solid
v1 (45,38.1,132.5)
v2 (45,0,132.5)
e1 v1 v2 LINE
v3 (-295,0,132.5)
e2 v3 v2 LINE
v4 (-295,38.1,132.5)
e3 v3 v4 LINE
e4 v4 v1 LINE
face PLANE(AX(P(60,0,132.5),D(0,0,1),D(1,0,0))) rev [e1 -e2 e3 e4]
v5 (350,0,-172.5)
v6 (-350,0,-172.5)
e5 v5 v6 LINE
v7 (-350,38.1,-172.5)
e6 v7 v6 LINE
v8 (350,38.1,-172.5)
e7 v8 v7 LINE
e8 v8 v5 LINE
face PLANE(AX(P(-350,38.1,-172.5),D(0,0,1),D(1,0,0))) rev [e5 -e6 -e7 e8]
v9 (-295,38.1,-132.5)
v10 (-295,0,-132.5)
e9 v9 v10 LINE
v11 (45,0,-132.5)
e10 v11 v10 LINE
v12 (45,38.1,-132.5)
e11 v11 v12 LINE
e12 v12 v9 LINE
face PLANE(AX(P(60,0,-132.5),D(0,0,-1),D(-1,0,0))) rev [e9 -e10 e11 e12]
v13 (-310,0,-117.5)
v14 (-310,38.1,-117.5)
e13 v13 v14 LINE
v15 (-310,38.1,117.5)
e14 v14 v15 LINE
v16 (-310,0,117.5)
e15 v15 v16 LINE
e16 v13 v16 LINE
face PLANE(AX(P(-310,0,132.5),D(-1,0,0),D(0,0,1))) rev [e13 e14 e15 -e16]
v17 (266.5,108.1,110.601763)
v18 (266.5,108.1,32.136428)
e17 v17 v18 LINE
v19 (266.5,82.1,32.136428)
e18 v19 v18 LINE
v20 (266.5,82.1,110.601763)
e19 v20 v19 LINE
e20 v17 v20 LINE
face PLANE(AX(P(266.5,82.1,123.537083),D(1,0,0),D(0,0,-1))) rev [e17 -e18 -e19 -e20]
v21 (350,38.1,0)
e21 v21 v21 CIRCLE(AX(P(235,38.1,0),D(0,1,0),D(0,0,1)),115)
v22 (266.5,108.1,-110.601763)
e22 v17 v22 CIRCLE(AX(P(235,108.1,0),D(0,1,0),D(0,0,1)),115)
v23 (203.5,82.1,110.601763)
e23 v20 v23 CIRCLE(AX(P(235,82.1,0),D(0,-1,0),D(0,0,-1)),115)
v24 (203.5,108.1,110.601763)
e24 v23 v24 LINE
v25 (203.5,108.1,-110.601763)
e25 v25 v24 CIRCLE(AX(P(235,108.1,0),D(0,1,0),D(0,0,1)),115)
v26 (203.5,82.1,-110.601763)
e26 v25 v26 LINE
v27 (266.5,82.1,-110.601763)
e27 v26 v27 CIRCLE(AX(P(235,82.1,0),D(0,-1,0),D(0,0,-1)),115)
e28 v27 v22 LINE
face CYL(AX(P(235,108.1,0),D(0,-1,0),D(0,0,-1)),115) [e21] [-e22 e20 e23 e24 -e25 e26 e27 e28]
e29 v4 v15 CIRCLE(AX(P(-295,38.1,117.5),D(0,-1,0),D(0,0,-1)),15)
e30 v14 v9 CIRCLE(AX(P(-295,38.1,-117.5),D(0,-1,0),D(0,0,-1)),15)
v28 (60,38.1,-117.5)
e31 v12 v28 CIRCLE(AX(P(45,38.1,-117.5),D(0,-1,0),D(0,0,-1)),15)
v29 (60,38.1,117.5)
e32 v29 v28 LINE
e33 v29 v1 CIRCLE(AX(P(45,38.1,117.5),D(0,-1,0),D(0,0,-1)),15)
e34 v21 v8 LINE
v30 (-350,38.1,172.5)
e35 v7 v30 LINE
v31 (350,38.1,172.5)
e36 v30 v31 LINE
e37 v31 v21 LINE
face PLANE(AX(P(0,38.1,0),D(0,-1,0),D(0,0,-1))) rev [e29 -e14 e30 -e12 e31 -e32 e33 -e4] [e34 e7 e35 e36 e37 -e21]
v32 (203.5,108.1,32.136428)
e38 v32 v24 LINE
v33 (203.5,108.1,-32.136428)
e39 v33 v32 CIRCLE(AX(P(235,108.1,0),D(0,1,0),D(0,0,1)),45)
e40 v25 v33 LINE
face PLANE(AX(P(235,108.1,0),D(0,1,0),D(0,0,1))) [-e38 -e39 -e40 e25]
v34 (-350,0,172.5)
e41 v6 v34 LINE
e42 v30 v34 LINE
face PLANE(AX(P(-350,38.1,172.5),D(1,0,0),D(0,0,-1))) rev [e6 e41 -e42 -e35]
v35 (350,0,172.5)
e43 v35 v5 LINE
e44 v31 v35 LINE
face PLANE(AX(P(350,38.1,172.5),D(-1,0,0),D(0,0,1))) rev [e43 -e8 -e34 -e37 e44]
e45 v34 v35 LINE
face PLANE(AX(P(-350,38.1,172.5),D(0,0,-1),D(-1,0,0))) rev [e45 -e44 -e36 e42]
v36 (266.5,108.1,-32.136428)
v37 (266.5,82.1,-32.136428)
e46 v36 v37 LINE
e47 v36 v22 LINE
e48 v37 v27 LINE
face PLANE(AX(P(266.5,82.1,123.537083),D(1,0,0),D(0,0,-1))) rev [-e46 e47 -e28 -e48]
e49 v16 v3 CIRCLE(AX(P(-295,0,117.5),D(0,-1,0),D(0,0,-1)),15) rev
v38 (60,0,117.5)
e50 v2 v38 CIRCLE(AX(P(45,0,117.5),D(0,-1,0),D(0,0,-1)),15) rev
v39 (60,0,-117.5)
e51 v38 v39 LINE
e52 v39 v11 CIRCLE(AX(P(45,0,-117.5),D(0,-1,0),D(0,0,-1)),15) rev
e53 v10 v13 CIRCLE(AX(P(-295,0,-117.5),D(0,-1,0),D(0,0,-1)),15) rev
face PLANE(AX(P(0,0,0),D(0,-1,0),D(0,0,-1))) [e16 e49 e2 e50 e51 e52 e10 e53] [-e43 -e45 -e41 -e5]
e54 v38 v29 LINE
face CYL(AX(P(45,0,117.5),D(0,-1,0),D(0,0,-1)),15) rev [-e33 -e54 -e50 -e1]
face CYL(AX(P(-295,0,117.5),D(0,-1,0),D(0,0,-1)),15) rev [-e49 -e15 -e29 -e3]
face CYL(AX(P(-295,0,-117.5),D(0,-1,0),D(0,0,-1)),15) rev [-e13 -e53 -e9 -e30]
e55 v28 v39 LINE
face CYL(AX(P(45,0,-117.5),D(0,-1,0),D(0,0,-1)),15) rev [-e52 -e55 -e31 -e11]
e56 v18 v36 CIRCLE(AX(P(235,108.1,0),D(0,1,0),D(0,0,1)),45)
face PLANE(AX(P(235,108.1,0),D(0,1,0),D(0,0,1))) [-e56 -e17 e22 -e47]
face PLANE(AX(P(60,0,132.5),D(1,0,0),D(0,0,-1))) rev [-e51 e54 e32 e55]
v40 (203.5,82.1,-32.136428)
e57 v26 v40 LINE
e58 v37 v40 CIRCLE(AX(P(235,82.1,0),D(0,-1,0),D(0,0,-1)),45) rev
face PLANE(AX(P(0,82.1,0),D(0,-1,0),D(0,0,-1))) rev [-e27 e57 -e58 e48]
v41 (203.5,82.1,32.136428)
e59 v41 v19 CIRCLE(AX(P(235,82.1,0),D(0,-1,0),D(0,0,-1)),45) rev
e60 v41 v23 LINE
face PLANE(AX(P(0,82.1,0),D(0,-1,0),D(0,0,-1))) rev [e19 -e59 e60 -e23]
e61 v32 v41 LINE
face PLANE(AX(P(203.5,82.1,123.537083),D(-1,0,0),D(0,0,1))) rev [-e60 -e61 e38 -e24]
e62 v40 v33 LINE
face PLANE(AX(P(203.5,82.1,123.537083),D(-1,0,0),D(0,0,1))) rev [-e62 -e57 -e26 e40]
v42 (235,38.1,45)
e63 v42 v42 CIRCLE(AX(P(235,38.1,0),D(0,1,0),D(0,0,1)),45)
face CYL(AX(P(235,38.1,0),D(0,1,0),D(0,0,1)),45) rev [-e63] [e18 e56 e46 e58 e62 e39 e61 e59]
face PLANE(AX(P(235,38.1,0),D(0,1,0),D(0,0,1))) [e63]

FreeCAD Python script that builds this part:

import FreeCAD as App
import Part
import Sketcher
from FreeCAD import Vector


def edges_at(feature, points):
    """Names of the edges that pass closest to the given points."""
    edges = feature.Shape.Edges
    near = lambda p: min(range(len(edges)), key=lambda i: edges[i].distToShape(Part.Vertex(*p))[0])
    return sorted({f"Edge{near(p) + 1}" for p in points})


def add_polygon(sketch, points):
    """Adds a closed chain of lines whose ends are joined by coincident constraints."""
    first, n = sketch.GeometryCount, len(points)
    for a, b in zip(points, points[1:] + points[:1]):
        sketch.addGeometry(Part.LineSegment(App.Vector(*a, 0), App.Vector(*b, 0)), False)
    for i in range(n):
        sketch.addConstraint(Sketcher.Constraint("Coincident", first + i, 2, first + (i + 1) % n, 1))

doc = App.newDocument("Part")
body = doc.addObject("PartDesign::Body", "Body")

sketch1 = body.newObject("Sketcher::SketchObject", "Sketch")
sketch1.AttachmentSupport = (doc.getObject("XZ_Plane"), [""])
sketch1.MapMode = "FlatFace"
add_polygon(sketch1, [(-350, -172), (-350, 172), (350, 172), (350, -172)])
sketch1.addConstraint([
    Sketcher.Constraint("Vertical", 0),
    Sketcher.Constraint("Horizontal", 1),
    Sketcher.Constraint("Vertical", 2),
    Sketcher.Constraint("Horizontal", 3),
    Sketcher.Constraint("Symmetric", 0, 2, 2, 2, -1, 1),
    Sketcher.Constraint("DistanceX", 1, 1, 1, 2, 700.0),
    Sketcher.Constraint("DistanceY", 0, 1, 0, 2, 345.0),
])
pad1 = body.newObject("PartDesign::Pad", "Pad")
pad1.Profile = sketch1
pad1.Length = 38.1
pad1.Reversed = True

sketch2 = body.newObject("Sketcher::SketchObject", "Sketch001")
sketch2.AttachmentSupport = (doc.getObject("XZ_Plane"), [""])
sketch2.MapMode = "FlatFace"
sketch2.AttachmentOffset = App.Placement(Vector(0, 0, -38.1), App.Rotation())
add_polygon(sketch2, [(-310, -132), (-310, 132), (60, 132), (60, -132)])
sketch2.addConstraint([
    Sketcher.Constraint("Vertical", 0),
    Sketcher.Constraint("Horizontal", 1),
    Sketcher.Constraint("Vertical", 2),
    Sketcher.Constraint("Horizontal", 3),
    Sketcher.Constraint("DistanceX", 1, 1, 1, 2, 370.0),
    Sketcher.Constraint("DistanceY", 0, 1, 0, 2, 265.0),
    Sketcher.Constraint("DistanceX", 0, 2, -1, 1, 310.0),
    Sketcher.Constraint("DistanceY", -1, 1, 0, 2, 132.5),
])
pocket1 = body.newObject("PartDesign::Pocket", "Pocket")
pocket1.Profile = sketch2
pocket1.Length = 38.1
pocket1.Reversed = True
doc.recompute()

fillet = body.newObject("PartDesign::Fillet", "Fillet")
fillet.Base = (pocket1, edges_at(pocket1, [
    (-310, 19.05, 132.5),
    (-310, 19.05, -132.5),
    (60, 19.05, -132.5),
    (60, 19.05, 132.5),
]))
fillet.Radius = 15

sketch3 = body.newObject("Sketcher::SketchObject", "Sketch002")
sketch3.AttachmentSupport = (doc.getObject("XZ_Plane"), [""])
sketch3.MapMode = "FlatFace"
sketch3.AttachmentOffset = App.Placement(Vector(0, 0, -38.1), App.Rotation())
sketch3.addGeometry(Part.Circle(Vector(235, 0, 0), Vector(0, 0, 1), 115), False)
sketch3.addConstraint([
    Sketcher.Constraint("PointOnObject", 0, 3, -1),
    Sketcher.Constraint("Diameter", 0, 230.0),
    Sketcher.Constraint("DistanceX", -1, 1, 0, 3, 235.0),
])
pad2 = body.newObject("PartDesign::Pad", "Pad001")
pad2.Profile = sketch3
pad2.Length = 70
pad2.Reversed = True

sketch4 = body.newObject("Sketcher::SketchObject", "Sketch003")
sketch4.AttachmentSupport = (doc.getObject("XZ_Plane"), [""])
sketch4.MapMode = "FlatFace"
sketch4.AttachmentOffset = App.Placement(Vector(0, 0, -108.1), App.Rotation())
sketch4.addGeometry(Part.Circle(Vector(235, 0, 0), Vector(0, 0, 1), 45), False)
sketch4.addConstraint([
    Sketcher.Constraint("PointOnObject", 0, 3, -1),
    Sketcher.Constraint("Diameter", 0, 90.0),
    Sketcher.Constraint("DistanceX", -1, 1, 0, 3, 235.0),
])
pocket2 = body.newObject("PartDesign::Pocket", "Pocket001")
pocket2.Profile = sketch4
pocket2.Length = 70
pocket2.Reversed = True

sketch5 = body.newObject("Sketcher::SketchObject", "Sketch004")
sketch5.AttachmentSupport = (doc.getObject("XZ_Plane"), [""])
sketch5.MapMode = "FlatFace"
sketch5.AttachmentOffset = App.Placement(Vector(0, 0, -108.1), App.Rotation())
add_polygon(sketch5, [(204, -124), (204, 124), (266, 124), (266, -124)])
sketch5.addConstraint([
    Sketcher.Constraint("Vertical", 0),
    Sketcher.Constraint("Horizontal", 1),
    Sketcher.Constraint("Vertical", 2),
    Sketcher.Constraint("Horizontal", 3),
    Sketcher.Constraint("DistanceX", 1, 1, 1, 2, 63.0),
    Sketcher.Constraint("DistanceX", -1, 1, 0, 2, 203.5),
    Sketcher.Constraint("DistanceY", 0, 1, 0, 2, 247.074166),
    Sketcher.Constraint("DistanceY", -1, 1, 0, 2, 123.537083),
])
pocket3 = body.newObject("PartDesign::Pocket", "Pocket002")
pocket3.Profile = sketch5
pocket3.Length = 26
pocket3.Reversed = True

doc.recompute()
